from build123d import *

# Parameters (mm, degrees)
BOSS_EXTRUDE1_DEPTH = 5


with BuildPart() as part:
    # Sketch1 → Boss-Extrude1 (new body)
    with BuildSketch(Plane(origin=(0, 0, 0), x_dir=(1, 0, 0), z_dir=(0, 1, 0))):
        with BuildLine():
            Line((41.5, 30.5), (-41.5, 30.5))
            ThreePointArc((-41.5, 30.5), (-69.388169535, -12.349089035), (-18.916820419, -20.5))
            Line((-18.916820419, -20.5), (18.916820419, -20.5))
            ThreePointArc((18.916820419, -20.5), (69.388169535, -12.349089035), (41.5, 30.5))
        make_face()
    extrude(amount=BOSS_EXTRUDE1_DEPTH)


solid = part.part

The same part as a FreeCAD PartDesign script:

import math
import FreeCAD as App
import Part
import Sketcher
from FreeCAD import Vector
Q = App.Units.Quantity

doc = App.newDocument("Part")
body = doc.addObject("PartDesign::Body", "Body")

sketch1 = doc.addObject("Sketcher::SketchObject", "Sketch")
body.addObject(sketch1)
sketch1.AttachmentSupport = (doc.XZ_Plane, [""])
sketch1.MapMode = "FlatFace"
sketch1.addGeometry(Part.LineSegment(Vector(42, -30, 0), Vector(-42, -30, 0)), False)
sketch1.addGeometry(Part.ArcOfCircle(Part.Circle(Vector(-42, 0, 0), Vector(0, 0, 1), 30), math.radians(42), math.radians(270)), False)
sketch1.addGeometry(Part.LineSegment(Vector(-19, 20, 0), Vector(19, 20, 0)), False)
sketch1.addGeometry(Part.ArcOfCircle(Part.Circle(Vector(42, 0, 0), Vector(0, 0, 1), 30), math.radians(-90), math.radians(138)), False)
sketch1.addConstraint(Sketcher.Constraint("Tangent", 0, 2, 1, 2))
sketch1.addConstraint(Sketcher.Constraint("Coincident", 1, 1, 2, 1))
sketch1.addConstraint(Sketcher.Constraint("Coincident", 2, 2, 3, 2))
sketch1.addConstraint(Sketcher.Constraint("Tangent", 3, 1, 0, 1))
sketch1.addConstraint(Sketcher.Constraint("Horizontal", 0))
sketch1.addConstraint(Sketcher.Constraint("Horizontal", 2))
sketch1.addConstraint(Sketcher.Constraint("Equal", 1, 3))
sketch1.addConstraint(Sketcher.Constraint("Symmetric", 1, 3, 3, 3, -1, 1))
sketch1.addConstraint(Sketcher.Constraint("Radius", 1, Q("30.5 mm")))
sketch1.addConstraint(Sketcher.Constraint("DistanceX", 0, 2, 0, 1, Q("83 mm")))
sketch1.addConstraint(Sketcher.Constraint("DistanceY", 0, 2, 1, 1, Q("51 mm")))
pad1 = doc.addObject("PartDesign::Pad", "Pad")
body.addObject(pad1)
pad1.Profile = sketch1
pad1.Length = 5
pad1.Reversed = True

doc.recompute()
